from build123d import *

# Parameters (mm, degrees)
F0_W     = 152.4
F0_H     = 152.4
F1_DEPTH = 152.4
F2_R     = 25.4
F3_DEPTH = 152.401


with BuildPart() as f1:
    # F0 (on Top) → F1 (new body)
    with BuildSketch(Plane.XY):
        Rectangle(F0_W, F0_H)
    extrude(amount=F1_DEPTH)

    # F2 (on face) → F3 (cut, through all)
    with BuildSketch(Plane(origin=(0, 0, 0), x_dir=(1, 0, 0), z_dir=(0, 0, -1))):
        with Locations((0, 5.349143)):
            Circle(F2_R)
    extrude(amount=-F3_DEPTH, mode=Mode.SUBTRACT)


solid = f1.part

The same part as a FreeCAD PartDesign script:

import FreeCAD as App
import Part
import Sketcher

V = App.Vector
Q = App.Units.Quantity

doc = App.newDocument("Part")
body = doc.addObject("PartDesign::Body", "Body")

# Sketch on XY plane
sketch1 = body.newObject("Sketcher::SketchObject", "Sketch")
sketch1.AttachmentSupport = (doc.getObject("XY_Plane"), [""])
sketch1.MapMode = "FlatFace"
sketch1.addGeometry([
    Part.LineSegment(V(-76, 76, 0), V(-76, -76, 0)),
    Part.LineSegment(V(-76, -76, 0), V(76, -76, 0)),
    Part.LineSegment(V(76, -76, 0), V(76, 76, 0)),
    Part.LineSegment(V(76, 76, 0), V(-76, 76, 0)),
], False)
sketch1.addConstraint([
    Sketcher.Constraint("Coincident", 0, 2, 1, 1),
    Sketcher.Constraint("Coincident", 1, 2, 2, 1),
    Sketcher.Constraint("Coincident", 2, 2, 3, 1),
    Sketcher.Constraint("Coincident", 3, 2, 0, 1),
    Sketcher.Constraint("Vertical", 0),
    Sketcher.Constraint("Horizontal", 1),
    Sketcher.Constraint("Vertical", 2),
    Sketcher.Constraint("Horizontal", 3),
    Sketcher.Constraint("Symmetric", 0, 2, 2, 2, -1, 1),
    Sketcher.Constraint("Equal", 3, 0),
    Sketcher.Constraint("DistanceX", 1, 1, 1, 2, Q("6 in")),
])
pad1 = body.newObject("PartDesign::Pad", "Pad")
pad1.Profile = sketch1
pad1.Length = Q("6 in")

# Sketch on XY plane
sketch2 = body.newObject("Sketcher::SketchObject", "Sketch001")
sketch2.AttachmentSupport = (doc.getObject("XY_Plane"), [""])
sketch2.MapMode = "FlatFace"
sketch2.addGeometry(Part.Circle(V(0, -5, 0), V(0, 0, 1), 25), False)
sketch2.addConstraint([
    Sketcher.Constraint("PointOnObject", 0, 3, -2),
    Sketcher.Constraint("Diameter", 0, Q("2 in")),
    Sketcher.Constraint("DistanceY", 0, 3, -1, 1, 5.349143),
])
pocket1 = body.newObject("PartDesign::Pocket", "Pocket")
pocket1.Profile = sketch2
pocket1.Type = "ThroughAll"
pocket1.Reversed = True

doc.recompute()
